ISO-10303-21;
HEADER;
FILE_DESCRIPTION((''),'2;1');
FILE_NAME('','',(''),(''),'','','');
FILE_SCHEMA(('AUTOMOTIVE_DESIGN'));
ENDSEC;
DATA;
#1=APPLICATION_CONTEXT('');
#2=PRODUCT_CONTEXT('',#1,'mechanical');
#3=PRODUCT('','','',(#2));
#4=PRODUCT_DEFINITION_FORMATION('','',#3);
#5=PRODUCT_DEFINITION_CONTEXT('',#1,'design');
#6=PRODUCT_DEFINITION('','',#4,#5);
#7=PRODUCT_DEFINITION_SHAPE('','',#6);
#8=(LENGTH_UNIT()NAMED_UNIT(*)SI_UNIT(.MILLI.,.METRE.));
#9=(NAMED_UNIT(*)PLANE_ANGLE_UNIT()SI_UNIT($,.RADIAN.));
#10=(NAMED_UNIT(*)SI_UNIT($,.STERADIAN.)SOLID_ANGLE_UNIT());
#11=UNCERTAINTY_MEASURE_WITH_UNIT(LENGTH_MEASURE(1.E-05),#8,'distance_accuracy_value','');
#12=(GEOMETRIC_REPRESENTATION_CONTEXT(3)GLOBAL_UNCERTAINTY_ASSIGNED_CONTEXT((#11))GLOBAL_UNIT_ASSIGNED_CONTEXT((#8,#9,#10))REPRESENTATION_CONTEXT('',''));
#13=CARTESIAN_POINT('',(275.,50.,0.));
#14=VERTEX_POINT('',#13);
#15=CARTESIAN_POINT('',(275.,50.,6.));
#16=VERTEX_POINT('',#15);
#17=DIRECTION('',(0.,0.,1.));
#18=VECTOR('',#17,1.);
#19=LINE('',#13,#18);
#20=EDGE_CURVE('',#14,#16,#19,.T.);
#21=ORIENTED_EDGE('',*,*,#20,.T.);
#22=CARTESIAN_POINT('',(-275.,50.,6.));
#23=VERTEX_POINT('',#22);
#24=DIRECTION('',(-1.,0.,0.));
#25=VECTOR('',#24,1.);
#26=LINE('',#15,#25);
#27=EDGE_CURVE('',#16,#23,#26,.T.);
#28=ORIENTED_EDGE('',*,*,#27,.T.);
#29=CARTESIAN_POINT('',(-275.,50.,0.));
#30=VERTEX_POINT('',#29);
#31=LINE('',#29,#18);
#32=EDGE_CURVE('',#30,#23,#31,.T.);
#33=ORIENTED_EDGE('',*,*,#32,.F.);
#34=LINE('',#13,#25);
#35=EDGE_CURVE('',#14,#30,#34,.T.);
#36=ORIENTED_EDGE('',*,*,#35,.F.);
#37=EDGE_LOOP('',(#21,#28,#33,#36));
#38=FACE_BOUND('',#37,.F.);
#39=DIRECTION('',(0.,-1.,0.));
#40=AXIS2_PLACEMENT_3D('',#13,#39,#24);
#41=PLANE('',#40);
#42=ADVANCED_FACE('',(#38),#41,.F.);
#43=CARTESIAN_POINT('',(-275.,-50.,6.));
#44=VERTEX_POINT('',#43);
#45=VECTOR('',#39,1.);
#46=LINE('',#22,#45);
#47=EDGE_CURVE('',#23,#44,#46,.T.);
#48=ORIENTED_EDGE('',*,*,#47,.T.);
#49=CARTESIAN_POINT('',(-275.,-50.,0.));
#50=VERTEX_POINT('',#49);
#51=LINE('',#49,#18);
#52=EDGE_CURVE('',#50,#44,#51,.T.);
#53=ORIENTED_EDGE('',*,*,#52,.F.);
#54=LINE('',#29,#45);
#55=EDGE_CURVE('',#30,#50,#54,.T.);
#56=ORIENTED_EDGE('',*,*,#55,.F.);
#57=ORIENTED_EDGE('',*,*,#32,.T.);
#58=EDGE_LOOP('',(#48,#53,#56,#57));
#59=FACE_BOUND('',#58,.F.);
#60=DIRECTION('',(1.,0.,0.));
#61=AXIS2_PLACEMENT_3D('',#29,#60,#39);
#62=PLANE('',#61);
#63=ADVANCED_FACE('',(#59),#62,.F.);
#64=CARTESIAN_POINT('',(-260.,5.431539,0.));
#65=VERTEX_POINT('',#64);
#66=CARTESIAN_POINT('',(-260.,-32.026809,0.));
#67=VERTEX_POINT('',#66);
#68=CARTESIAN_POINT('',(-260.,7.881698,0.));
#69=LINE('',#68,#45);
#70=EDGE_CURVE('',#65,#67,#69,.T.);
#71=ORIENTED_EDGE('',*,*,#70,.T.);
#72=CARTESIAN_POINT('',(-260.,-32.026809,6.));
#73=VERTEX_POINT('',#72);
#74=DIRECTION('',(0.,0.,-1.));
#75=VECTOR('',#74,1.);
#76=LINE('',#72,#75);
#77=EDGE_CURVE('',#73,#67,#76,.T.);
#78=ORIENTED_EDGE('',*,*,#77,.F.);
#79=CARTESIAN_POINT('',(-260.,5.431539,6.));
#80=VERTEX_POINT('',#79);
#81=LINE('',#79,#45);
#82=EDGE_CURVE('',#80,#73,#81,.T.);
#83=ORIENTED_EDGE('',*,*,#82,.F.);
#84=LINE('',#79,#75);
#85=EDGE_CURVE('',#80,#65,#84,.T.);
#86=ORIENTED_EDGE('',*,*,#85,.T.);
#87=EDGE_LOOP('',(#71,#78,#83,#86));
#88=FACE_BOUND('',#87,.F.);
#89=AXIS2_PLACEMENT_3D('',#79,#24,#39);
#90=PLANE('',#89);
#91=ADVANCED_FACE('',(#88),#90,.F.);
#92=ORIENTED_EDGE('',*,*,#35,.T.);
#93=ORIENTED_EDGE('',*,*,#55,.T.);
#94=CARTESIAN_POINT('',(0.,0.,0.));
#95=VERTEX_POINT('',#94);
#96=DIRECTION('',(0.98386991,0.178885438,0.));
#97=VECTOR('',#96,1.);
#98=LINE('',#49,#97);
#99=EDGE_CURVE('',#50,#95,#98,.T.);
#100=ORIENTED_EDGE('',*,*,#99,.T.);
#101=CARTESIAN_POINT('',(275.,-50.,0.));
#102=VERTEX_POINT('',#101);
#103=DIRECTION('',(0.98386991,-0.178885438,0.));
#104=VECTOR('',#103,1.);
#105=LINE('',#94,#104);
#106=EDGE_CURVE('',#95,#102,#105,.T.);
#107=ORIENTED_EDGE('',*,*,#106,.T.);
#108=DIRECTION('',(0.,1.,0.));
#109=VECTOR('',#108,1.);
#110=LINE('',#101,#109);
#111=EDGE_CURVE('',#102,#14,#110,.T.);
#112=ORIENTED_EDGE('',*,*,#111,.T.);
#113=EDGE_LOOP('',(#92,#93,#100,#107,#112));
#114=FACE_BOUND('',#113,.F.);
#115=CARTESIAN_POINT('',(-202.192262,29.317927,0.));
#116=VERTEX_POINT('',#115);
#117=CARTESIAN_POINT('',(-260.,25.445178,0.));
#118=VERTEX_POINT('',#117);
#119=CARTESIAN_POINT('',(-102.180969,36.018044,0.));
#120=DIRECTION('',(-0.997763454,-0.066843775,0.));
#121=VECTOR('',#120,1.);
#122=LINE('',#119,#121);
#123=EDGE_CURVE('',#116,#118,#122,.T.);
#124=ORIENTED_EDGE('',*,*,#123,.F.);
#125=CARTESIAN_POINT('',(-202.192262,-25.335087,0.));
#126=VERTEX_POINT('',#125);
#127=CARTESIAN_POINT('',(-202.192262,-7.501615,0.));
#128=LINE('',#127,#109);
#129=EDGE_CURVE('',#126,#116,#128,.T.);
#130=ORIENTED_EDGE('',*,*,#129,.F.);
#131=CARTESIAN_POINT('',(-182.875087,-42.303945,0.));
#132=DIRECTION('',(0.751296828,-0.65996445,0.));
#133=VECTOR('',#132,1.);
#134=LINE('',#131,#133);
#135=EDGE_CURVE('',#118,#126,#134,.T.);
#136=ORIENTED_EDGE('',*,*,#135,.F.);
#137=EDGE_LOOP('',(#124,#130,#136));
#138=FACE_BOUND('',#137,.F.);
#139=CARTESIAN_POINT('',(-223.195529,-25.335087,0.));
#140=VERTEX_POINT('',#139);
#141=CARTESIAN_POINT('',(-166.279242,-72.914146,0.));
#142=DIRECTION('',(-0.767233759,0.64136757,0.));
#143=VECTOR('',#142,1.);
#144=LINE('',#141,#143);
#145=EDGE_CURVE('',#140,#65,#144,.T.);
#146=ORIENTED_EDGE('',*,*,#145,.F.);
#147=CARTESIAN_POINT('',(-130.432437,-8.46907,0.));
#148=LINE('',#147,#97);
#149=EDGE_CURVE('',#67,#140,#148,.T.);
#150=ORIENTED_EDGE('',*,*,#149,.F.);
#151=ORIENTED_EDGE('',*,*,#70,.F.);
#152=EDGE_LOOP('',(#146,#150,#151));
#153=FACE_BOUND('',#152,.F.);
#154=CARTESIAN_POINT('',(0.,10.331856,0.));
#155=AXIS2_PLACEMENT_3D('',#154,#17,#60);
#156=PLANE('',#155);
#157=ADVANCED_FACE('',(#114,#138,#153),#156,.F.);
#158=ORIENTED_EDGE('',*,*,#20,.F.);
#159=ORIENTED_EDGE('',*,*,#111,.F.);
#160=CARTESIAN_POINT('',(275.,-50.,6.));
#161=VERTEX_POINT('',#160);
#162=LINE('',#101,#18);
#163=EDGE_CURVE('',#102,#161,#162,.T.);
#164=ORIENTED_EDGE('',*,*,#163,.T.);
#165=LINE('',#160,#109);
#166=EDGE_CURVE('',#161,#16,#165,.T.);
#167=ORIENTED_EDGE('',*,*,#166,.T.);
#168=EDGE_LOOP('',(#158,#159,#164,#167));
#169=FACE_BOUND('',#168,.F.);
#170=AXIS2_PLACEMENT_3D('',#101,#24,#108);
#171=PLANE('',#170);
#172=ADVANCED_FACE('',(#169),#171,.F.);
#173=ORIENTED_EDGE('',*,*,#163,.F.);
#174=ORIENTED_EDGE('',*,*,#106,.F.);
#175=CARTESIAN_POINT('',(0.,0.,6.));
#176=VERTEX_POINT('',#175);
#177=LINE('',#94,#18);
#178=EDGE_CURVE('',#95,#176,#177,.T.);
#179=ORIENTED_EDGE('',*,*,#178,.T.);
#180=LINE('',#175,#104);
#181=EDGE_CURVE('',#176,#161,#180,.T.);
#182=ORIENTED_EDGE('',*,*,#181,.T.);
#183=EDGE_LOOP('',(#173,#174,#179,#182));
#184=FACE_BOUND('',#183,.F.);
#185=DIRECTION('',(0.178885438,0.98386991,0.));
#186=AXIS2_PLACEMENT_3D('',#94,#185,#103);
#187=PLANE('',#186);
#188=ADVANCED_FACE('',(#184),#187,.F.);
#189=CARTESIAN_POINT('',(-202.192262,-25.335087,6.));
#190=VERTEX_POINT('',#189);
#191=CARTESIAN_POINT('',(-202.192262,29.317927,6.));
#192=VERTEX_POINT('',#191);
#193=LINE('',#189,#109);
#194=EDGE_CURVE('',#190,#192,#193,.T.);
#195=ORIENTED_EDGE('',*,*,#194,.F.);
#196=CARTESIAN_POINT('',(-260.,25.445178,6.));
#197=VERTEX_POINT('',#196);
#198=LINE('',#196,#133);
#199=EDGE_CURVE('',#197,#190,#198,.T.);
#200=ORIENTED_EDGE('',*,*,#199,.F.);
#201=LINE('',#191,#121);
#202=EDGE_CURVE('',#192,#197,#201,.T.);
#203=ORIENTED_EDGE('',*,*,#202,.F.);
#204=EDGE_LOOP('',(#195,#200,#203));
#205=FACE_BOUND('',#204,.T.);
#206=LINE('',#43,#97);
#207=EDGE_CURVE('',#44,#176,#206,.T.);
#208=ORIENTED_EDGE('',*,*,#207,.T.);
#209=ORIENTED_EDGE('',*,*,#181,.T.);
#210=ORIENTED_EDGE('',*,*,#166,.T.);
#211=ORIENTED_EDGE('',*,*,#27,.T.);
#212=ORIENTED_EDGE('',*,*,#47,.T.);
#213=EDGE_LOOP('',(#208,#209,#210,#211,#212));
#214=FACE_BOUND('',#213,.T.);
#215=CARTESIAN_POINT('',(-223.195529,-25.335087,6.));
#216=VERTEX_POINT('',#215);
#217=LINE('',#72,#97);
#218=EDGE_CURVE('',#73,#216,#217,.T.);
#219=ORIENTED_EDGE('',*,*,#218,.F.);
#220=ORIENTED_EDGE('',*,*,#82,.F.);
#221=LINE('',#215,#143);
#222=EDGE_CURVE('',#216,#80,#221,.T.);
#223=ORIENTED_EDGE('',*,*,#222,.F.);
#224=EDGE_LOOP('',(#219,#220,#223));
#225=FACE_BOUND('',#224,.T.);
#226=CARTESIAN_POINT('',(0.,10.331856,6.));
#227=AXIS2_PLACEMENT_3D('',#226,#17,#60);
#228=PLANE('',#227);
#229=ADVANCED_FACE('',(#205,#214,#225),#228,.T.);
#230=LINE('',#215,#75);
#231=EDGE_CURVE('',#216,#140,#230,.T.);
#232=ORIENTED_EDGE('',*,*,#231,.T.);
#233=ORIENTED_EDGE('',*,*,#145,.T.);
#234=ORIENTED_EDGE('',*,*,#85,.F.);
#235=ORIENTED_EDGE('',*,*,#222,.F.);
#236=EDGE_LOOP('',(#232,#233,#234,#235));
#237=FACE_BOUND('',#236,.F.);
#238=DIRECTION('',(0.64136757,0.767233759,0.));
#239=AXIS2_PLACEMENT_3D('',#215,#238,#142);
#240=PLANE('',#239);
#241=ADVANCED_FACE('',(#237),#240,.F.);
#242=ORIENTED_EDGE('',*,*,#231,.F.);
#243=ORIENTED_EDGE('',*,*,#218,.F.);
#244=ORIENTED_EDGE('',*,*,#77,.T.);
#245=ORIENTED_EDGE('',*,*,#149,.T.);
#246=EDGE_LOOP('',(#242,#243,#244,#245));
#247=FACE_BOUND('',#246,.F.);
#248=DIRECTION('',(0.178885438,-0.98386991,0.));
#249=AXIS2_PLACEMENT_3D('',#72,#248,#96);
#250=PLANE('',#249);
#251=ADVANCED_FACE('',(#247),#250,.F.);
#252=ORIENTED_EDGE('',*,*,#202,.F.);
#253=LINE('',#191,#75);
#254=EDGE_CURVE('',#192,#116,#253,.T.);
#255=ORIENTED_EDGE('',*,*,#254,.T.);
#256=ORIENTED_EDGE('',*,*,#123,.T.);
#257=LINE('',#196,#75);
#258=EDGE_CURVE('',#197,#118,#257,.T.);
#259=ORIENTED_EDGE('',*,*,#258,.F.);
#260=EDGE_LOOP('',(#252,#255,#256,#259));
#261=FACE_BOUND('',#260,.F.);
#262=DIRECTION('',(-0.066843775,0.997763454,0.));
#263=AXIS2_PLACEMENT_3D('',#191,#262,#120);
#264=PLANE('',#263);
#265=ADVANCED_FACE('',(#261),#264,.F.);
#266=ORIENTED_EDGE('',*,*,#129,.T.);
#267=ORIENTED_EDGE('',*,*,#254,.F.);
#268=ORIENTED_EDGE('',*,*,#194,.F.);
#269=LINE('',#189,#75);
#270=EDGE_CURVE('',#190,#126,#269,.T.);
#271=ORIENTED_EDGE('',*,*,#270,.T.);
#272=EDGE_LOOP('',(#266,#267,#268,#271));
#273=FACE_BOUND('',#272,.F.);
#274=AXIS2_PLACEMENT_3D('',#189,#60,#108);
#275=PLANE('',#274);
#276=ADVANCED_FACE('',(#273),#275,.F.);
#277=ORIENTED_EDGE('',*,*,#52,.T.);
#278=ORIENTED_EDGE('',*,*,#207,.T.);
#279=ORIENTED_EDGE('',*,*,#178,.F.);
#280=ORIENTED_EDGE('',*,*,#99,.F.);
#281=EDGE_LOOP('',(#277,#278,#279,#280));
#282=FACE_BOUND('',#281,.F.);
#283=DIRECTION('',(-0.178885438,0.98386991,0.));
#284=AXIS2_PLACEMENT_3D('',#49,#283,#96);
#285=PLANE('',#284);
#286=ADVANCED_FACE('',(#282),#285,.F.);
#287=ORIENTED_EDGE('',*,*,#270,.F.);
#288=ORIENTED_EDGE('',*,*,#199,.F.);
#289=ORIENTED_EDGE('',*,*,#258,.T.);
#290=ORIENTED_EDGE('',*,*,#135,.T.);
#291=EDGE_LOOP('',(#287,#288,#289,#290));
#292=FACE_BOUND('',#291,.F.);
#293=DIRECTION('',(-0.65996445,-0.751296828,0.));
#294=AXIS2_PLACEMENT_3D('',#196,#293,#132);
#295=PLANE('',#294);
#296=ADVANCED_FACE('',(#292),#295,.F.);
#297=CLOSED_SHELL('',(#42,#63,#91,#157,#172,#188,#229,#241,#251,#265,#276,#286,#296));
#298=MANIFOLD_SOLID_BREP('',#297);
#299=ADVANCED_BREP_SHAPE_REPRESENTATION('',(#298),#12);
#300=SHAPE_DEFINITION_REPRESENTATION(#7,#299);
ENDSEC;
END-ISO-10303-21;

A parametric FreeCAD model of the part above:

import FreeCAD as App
import Part
import Sketcher

V = App.Vector

doc = App.newDocument("Part")
body = doc.addObject("PartDesign::Body", "Body")

# Sketch on XY plane
sketch1 = body.newObject("Sketcher::SketchObject", "Sketch")
sketch1.AttachmentSupport = (doc.getObject("XY_Plane"), [""])
sketch1.MapMode = "FlatFace"
sketch1.addGeometry(Part.LineSegment(V(275, -50, 0), V(275, 50, 0)), False)
sketch1.addGeometry(Part.LineSegment(V(275, 50, 0), V(-275, 50, 0)), False)
sketch1.addGeometry(Part.LineSegment(V(-275, 50, 0), V(-275, -50, 0)), False)
sketch1.addGeometry(Part.LineSegment(V(-275, -50, 0), V(0, 0, 0)), False)
sketch1.addGeometry(Part.LineSegment(V(0, 0, 0), V(275, -50, 0)), False)
sketch1.addConstraint(Sketcher.Constraint("Coincident", 0, 2, 1, 1))
sketch1.addConstraint(Sketcher.Constraint("Coincident", 1, 2, 2, 1))
sketch1.addConstraint(Sketcher.Constraint("Coincident", 2, 2, 3, 1))
sketch1.addConstraint(Sketcher.Constraint("Coincident", 3, 2, 4, 1))
sketch1.addConstraint(Sketcher.Constraint("Coincident", 4, 2, 0, 1))
sketch1.addConstraint(Sketcher.Constraint("Vertical", 0))
sketch1.addConstraint(Sketcher.Constraint("Horizontal", 1))
sketch1.addConstraint(Sketcher.Constraint("Vertical", 2))
sketch1.addConstraint(Sketcher.Constraint("Coincident", 3, 2, -1, 1))
sketch1.addConstraint(Sketcher.Constraint("Symmetric", 0, 2, 2, 2, -1, 1))
sketch1.addConstraint(Sketcher.Constraint("Horizontal", 2, 2, 4, 2))
sketch1.addConstraint(Sketcher.Constraint("DistanceX", 1, 2, 1, 1, 550.0))
sketch1.addConstraint(Sketcher.Constraint("DistanceY", 0, 1, 0, 2, 100.0))
pad1 = body.newObject("PartDesign::Pad", "Pad")
pad1.Profile = sketch1
pad1.Length = 6

# Sketch on XY plane
sketch2 = body.newObject("Sketcher::SketchObject", "Sketch001")
sketch2.AttachmentSupport = (doc.getObject("XY_Plane"), [""])
sketch2.MapMode = "FlatFace"
sketch2.AttachmentOffset = App.Placement(V(0, 0, 6), App.Rotation())
sketch2.addGeometry(Part.LineSegment(V(-223, -25, 0), V(-260, 5, 0)), False)
sketch2.addGeometry(Part.LineSegment(V(-260, 5, 0), V(-260, -32, 0)), False)
sketch2.addGeometry(Part.LineSegment(V(-260, -32, 0), V(-223, -25, 0)), False)
sketch2.addGeometry(Part.LineSegment(V(-202, 29, 0), V(-260, 25, 0)), False)
sketch2.addGeometry(Part.LineSegment(V(-260, 25, 0), V(-202, -25, 0)), False)
sketch2.addGeometry(Part.LineSegment(V(-202, -25, 0), V(-202, 29, 0)), False)
sketch2.addConstraint(Sketcher.Constraint("Coincident", 0, 2, 1, 1))
sketch2.addConstraint(Sketcher.Constraint("Coincident", 1, 2, 2, 1))
sketch2.addConstraint(Sketcher.Constraint("Coincident", 2, 2, 0, 1))
sketch2.addConstraint(Sketcher.Constraint("Coincident", 3, 2, 4, 1))
sketch2.addConstraint(Sketcher.Constraint("Coincident", 4, 2, 5, 1))
sketch2.addConstraint(Sketcher.Constraint("Coincident", 5, 2, 3, 1))
sketch2.addConstraint(Sketcher.Constraint("Vertical", 1))
sketch2.addConstraint(Sketcher.Constraint("Vertical", 5))
sketch2.addConstraint(Sketcher.Constraint("Horizontal", 2, 2, 4, 2))
sketch2.addConstraint(Sketcher.Constraint("Vertical", 1, 2, 3, 2))
sketch2.addConstraint(Sketcher.Constraint("DistanceX", 0, 2, -1, 1, 260.0))
sketch2.addConstraint(Sketcher.Constraint("Distance", 0, 47.970349))
sketch2.addConstraint(Sketcher.Constraint("Distance", 4, 76.94394))
sketch2.addConstraint(Sketcher.Constraint("DistanceY", 1, 2, 1, 1, 37.458348))
sketch2.addConstraint(Sketcher.Constraint("DistanceY", 5, 1, 5, 2, 54.653014))
sketch2.addConstraint(Sketcher.Constraint("DistanceY", -1, 1, 0, 2, 5.431539))
sketch2.addConstraint(Sketcher.Constraint("DistanceX", 2, 2, -1, 1, 223.195529))
sketch2.addConstraint(Sketcher.Constraint("DistanceX", 4, 2, -1, 1, 202.192262))
pocket1 = body.newObject("PartDesign::Pocket", "Pocket")
pocket1.Profile = sketch2
pocket1.Length = 25

doc.recompute()
